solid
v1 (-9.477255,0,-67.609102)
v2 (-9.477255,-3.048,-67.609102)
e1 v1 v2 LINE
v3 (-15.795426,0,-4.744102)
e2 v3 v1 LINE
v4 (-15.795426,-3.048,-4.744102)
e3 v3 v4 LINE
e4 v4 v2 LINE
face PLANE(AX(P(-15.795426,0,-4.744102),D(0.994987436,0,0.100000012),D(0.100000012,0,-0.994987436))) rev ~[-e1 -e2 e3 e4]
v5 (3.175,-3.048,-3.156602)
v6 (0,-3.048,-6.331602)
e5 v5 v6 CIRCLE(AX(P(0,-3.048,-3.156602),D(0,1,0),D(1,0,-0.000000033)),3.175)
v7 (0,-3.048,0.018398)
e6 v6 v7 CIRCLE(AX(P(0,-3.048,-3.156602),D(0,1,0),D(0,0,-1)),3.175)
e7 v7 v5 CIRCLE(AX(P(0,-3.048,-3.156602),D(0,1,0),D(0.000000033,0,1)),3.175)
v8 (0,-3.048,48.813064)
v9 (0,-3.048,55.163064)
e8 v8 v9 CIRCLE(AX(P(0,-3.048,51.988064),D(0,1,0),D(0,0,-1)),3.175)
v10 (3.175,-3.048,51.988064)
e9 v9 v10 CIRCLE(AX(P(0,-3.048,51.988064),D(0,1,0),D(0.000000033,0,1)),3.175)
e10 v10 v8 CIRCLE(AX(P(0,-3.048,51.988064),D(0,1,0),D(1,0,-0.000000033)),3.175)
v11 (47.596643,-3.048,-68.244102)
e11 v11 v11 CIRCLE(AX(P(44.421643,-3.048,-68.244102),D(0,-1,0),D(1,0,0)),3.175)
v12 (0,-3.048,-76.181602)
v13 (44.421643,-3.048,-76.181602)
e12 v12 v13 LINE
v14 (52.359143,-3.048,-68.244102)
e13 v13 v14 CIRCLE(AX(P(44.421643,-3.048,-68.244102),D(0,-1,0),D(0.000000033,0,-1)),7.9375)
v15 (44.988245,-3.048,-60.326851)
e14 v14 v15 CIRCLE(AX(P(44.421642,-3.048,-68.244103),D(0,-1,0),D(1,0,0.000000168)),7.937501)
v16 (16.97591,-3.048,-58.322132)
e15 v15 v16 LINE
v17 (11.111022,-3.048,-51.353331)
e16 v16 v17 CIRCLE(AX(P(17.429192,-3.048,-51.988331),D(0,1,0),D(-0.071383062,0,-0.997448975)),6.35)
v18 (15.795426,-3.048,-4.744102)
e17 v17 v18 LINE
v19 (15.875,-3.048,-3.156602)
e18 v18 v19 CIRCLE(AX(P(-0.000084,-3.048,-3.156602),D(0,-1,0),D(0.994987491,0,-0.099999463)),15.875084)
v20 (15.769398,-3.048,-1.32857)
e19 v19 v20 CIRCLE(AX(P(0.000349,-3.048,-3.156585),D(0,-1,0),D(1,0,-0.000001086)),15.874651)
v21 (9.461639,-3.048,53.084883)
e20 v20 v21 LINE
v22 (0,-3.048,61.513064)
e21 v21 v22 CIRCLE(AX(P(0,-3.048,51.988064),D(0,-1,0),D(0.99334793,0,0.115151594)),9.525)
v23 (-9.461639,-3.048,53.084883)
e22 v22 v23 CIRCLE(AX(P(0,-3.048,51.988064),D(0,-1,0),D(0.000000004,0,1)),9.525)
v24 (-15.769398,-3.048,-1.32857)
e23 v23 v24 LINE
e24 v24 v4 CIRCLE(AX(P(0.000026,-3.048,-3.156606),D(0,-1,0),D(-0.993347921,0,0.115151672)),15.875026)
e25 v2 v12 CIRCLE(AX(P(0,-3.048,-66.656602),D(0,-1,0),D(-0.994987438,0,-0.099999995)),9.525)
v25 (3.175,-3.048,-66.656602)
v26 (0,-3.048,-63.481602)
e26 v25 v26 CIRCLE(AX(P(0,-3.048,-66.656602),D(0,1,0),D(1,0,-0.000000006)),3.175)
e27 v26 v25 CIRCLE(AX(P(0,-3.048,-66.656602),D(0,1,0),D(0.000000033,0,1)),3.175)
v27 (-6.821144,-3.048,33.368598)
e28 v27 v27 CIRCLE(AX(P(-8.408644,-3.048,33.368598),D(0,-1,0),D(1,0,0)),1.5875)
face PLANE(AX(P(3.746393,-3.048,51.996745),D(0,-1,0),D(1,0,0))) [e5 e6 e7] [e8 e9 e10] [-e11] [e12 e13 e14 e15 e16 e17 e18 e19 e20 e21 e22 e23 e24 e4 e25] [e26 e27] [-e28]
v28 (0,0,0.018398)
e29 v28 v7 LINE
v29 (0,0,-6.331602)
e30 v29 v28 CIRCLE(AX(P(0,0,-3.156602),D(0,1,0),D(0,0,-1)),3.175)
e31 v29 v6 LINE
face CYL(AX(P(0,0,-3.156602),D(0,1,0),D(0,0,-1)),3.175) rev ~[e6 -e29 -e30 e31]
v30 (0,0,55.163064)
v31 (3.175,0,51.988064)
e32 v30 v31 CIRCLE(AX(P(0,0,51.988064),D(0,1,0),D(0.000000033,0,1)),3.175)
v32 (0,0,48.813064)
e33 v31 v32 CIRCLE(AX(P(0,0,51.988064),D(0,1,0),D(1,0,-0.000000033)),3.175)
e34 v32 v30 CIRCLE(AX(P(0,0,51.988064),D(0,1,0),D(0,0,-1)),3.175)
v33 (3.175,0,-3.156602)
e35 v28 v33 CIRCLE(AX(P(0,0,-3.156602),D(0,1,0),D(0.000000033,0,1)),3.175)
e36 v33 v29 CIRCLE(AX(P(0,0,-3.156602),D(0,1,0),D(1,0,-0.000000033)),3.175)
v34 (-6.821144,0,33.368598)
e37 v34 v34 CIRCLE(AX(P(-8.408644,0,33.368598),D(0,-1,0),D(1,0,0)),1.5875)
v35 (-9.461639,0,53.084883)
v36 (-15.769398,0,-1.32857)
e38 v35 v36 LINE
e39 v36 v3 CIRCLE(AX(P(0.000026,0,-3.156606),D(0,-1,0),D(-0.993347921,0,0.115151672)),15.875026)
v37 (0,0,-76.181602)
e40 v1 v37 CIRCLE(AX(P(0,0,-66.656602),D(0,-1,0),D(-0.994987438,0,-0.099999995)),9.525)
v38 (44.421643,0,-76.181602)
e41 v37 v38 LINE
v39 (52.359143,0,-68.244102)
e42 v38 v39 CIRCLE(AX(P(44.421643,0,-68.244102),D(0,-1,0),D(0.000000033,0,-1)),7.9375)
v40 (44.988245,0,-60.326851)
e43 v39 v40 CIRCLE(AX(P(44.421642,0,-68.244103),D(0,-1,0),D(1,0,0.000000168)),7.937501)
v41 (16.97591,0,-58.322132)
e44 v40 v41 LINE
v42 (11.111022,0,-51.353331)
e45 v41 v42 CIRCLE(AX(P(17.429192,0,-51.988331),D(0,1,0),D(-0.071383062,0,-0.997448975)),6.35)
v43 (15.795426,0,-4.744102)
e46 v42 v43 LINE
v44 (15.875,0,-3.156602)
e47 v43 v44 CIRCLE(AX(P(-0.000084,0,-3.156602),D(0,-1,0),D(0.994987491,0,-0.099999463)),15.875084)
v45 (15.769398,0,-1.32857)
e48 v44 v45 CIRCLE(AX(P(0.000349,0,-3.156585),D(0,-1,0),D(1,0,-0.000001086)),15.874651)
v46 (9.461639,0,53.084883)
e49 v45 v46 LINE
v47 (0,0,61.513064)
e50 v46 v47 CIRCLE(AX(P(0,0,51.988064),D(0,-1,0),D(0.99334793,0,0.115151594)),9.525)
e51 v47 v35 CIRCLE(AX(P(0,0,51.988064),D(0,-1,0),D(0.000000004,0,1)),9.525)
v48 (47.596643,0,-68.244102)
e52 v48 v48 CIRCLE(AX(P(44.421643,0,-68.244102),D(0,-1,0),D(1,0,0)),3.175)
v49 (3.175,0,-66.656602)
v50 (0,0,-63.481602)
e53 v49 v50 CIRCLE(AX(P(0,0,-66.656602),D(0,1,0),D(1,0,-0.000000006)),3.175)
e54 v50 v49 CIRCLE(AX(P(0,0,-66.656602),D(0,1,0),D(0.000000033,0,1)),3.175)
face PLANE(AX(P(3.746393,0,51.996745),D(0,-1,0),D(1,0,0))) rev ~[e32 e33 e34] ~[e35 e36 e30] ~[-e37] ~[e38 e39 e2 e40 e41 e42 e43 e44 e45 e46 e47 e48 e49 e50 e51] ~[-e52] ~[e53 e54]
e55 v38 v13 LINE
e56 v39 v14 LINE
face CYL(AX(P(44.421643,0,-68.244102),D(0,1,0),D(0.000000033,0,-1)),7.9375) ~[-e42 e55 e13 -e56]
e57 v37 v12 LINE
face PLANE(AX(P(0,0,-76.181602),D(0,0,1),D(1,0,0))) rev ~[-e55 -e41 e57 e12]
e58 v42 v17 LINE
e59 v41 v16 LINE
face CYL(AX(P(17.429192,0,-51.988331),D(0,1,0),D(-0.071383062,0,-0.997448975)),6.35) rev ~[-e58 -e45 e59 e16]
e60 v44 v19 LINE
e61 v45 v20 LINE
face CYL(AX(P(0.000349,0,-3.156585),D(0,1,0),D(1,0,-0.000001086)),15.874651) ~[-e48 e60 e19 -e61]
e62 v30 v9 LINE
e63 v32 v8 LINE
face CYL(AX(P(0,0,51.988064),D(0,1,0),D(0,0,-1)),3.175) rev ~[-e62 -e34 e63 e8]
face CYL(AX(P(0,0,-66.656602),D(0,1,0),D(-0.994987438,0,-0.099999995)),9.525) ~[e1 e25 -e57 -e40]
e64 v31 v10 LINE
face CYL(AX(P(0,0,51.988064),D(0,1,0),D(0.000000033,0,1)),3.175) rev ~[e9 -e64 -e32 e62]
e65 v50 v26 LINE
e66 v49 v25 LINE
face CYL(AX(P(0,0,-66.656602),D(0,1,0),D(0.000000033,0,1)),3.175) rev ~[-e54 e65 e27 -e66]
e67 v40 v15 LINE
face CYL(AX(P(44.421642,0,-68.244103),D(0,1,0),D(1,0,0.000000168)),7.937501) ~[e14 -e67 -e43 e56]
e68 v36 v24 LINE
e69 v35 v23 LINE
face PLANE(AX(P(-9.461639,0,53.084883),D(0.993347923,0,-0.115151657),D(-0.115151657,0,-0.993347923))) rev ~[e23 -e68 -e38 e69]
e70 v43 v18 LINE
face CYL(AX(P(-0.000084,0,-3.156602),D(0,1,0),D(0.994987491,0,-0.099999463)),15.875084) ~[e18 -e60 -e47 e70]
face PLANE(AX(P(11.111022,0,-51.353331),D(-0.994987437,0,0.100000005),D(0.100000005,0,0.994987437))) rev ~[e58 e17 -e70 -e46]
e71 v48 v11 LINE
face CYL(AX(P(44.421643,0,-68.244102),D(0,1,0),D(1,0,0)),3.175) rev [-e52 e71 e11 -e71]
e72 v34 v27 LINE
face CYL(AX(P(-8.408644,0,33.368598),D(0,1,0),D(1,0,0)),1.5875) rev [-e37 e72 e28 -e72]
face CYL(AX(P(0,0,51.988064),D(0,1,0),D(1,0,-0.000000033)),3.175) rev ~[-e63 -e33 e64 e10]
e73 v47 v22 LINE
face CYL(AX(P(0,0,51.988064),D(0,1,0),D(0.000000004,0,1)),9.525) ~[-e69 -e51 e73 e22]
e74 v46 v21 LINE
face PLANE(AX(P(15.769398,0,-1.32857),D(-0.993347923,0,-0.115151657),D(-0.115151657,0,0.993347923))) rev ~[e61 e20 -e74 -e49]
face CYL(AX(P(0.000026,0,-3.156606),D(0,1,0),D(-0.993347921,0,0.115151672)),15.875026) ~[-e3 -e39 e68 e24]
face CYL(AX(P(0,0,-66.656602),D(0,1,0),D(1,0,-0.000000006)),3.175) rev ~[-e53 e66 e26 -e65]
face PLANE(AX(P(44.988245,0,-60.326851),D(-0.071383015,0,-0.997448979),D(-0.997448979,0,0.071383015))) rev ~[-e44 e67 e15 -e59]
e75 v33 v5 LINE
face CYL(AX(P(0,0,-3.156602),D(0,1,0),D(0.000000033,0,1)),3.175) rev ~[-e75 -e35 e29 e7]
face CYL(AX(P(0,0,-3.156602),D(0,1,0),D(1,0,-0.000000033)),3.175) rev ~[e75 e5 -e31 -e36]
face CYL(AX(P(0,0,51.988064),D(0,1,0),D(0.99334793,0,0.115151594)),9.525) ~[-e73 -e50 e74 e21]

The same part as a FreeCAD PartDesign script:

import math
import FreeCAD as App
import Part
import Sketcher

V = App.Vector
Q = App.Units.Quantity

doc = App.newDocument("Part")
params = doc.addObject("Spreadsheet::Sheet", "Params")
for row, (alias, value) in enumerate([
    ("sketch1_diameter", "0.25 in"),
    ("sketch1_radius", "0.25 in"),
    ("sketch1_diameter2", "0.125 in"),
    ("sketch1_radius2", "0.375 in"),
    ("sketch1_radius3", "0.375 in"),
    ("pad1_length", "0.12 in"),
], start=1):
    params.set(f"A{row}", alias)
    params.set(f"B{row}", "=" + value)
    params.setAlias(f"B{row}", alias)

body = doc.addObject("PartDesign::Body", "Body")

sketch1 = body.newObject("Sketcher::SketchObject", "Sketch")
sketch1.AttachmentSupport = (doc.getObject("XZ_Plane"), [""])
sketch1.MapMode = "FlatFace"
sketch1.addGeometry(Part.LineSegment(V(15.769398, -1.32857, 0), V(9.461639, 53.084883, 0)), False)
sketch1.addGeometry(Part.ArcOfCircle(Part.Circle(V(0, 51.988064, 0), V(0, 0, 1), 9.525), math.radians(6.612369), math.radians(90)), False)
sketch1.addGeometry(Part.ArcOfCircle(Part.Circle(V(0, 51.988064, 0), V(0, 0, 1), 9.525), math.radians(90), math.radians(173.387631)), False)
sketch1.addGeometry(Part.LineSegment(V(-9.461639, 53.084883, 0), V(-15.769398, -1.32857, 0)), False)
sketch1.addGeometry(Part.ArcOfCircle(Part.Circle(V(0.000026, -3.156606, 0), V(0, 0, 1), 15.875026), math.radians(173.387627), math.radians(185.739147)), False)
sketch1.addGeometry(Part.LineSegment(V(-15.795426, -4.744102, 0), V(-9.477255, -67.609102, 0)), False)
sketch1.addGeometry(Part.ArcOfCircle(Part.Circle(V(0, -66.656602, 0), V(0, 0, 1), 9.525), math.radians(-174.26083), math.radians(-90.000002)), False)
sketch1.addGeometry(Part.LineSegment(V(0, -76.181602, 0), V(44.421643, -76.181602, 0)), False)
sketch1.addGeometry(Part.ArcOfCircle(Part.Circle(V(44.421643, -68.244102, 0), V(0, 0, 1), 7.9375), math.radians(-89.999998), math.radians(-0.000002)), False)
sketch1.addGeometry(Part.ArcOfCircle(Part.Circle(V(44.421642, -68.244103, 0), V(0, 0, 1), 7.937501), math.radians(0.00001), math.radians(85.906571)), False)
sketch1.addGeometry(Part.LineSegment(V(44.988245, -60.326851, 0), V(16.97591, -58.322132, 0)), False)
sketch1.addGeometry(Part.ArcOfCircle(Part.Circle(V(17.429192, -51.988331, 0), V(0, 0, 1), 6.35), math.radians(174.260832), math.radians(265.90657)), False)
sketch1.addGeometry(Part.LineSegment(V(11.111022, -51.353331, 0), V(15.795426, -4.744102, 0)), False)
sketch1.addGeometry(Part.ArcOfCircle(Part.Circle(V(-0.000084, -3.156602, 0), V(0, 0, 1), 15.875084), math.radians(-5.73914), math.radians(0)), False)
sketch1.addGeometry(Part.ArcOfCircle(Part.Circle(V(0.000349, -3.156585, 0), V(0, 0, 1), 15.874651), math.radians(-0.000062), math.radians(6.612454)), False)
sketch1.addGeometry(Part.ArcOfCircle(Part.Circle(V(0, -66.656602, 0), V(0, 0, 1), 3.175), math.radians(0.000002), math.radians(89.999998)), False)
sketch1.addGeometry(Part.ArcOfCircle(Part.Circle(V(0, -66.656602, 0), V(0, 0, 1), 3.175), math.radians(90), math.radians(360)), False)
sketch1.addGeometry(Part.Circle(V(44.421643, -68.244102, 0), V(0, 0, 1), 3.175), False)
sketch1.addGeometry(Part.ArcOfCircle(Part.Circle(V(0, -3.156602, 0), V(0, 0, 1), 3.175), math.radians(90), math.radians(270)), False)
sketch1.addGeometry(Part.ArcOfCircle(Part.Circle(V(0, -3.156602, 0), V(0, 0, 1), 3.175), math.radians(0.000002), math.radians(89.999998)), False)
sketch1.addGeometry(Part.ArcOfCircle(Part.Circle(V(0, -3.156602, 0), V(0, 0, 1), 3.175), math.radians(-89.999998), math.radians(-0.000002)), False)
sketch1.addGeometry(Part.Circle(V(-8.408644, 33.368598, 0), V(0, 0, 1), 1.5875), False)
sketch1.addGeometry(Part.ArcOfCircle(Part.Circle(V(0, 51.988064, 0), V(0, 0, 1), 3.175), math.radians(0.000002), math.radians(89.999998)), False)
sketch1.addGeometry(Part.ArcOfCircle(Part.Circle(V(0, 51.988064, 0), V(0, 0, 1), 3.175), math.radians(-89.999998), math.radians(-0.000002)), False)
sketch1.addGeometry(Part.ArcOfCircle(Part.Circle(V(0, 51.988064, 0), V(0, 0, 1), 3.175), math.radians(90), math.radians(270)), False)
sketch1.addConstraint(Sketcher.Constraint("Coincident", 0, 2, 1, 1))
sketch1.addConstraint(Sketcher.Constraint("Coincident", 1, 2, 2, 1))
sketch1.addConstraint(Sketcher.Constraint("Coincident", 2, 2, 3, 1))
sketch1.addConstraint(Sketcher.Constraint("Coincident", 3, 2, 4, 1))
sketch1.addConstraint(Sketcher.Constraint("Coincident", 4, 2, 5, 1))
sketch1.addConstraint(Sketcher.Constraint("Coincident", 5, 2, 6, 1))
sketch1.addConstraint(Sketcher.Constraint("Coincident", 6, 2, 7, 1))
sketch1.addConstraint(Sketcher.Constraint("Coincident", 7, 2, 8, 1))
sketch1.addConstraint(Sketcher.Constraint("Coincident", 8, 2, 9, 1))
sketch1.addConstraint(Sketcher.Constraint("Coincident", 9, 2, 10, 1))
sketch1.addConstraint(Sketcher.Constraint("Coincident", 10, 2, 11, 2))
sketch1.addConstraint(Sketcher.Constraint("Coincident", 11, 1, 12, 1))
sketch1.addConstraint(Sketcher.Constraint("Coincident", 12, 2, 13, 1))
sketch1.addConstraint(Sketcher.Constraint("Coincident", 13, 2, 14, 1))
sketch1.addConstraint(Sketcher.Constraint("Coincident", 14, 2, 0, 1))
sketch1.addConstraint(Sketcher.Constraint("Coincident", 15, 1, 16, 2))
sketch1.addConstraint(Sketcher.Constraint("Coincident", 16, 1, 15, 2))
sketch1.addConstraint(Sketcher.Constraint("Coincident", 18, 1, 19, 2))
sketch1.addConstraint(Sketcher.Constraint("Coincident", 19, 1, 20, 2))
sketch1.addConstraint(Sketcher.Constraint("Coincident", 20, 1, 18, 2))
sketch1.addConstraint(Sketcher.Constraint("Coincident", 22, 1, 23, 2))
sketch1.addConstraint(Sketcher.Constraint("Coincident", 23, 1, 24, 2))
sketch1.addConstraint(Sketcher.Constraint("Coincident", 24, 1, 22, 2))
sketch1.addConstraint(Sketcher.Constraint("Horizontal", 7))
sketch1.addConstraint(Sketcher.Constraint("Coincident", 2, 3, 1, 3))
sketch1.addConstraint(Sketcher.Constraint("Coincident", 9, 3, 8, 3))
sketch1.addConstraint(Sketcher.Constraint("Coincident", 15, 3, 6, 3))
sketch1.addConstraint(Sketcher.Constraint("Coincident", 17, 3, 8, 3))
sketch1.addConstraint(Sketcher.Constraint("Coincident", 19, 3, 18, 3))
sketch1.addConstraint(Sketcher.Constraint("Coincident", 22, 3, 1, 3))
sketch1.addConstraint(Sketcher.Constraint("Coincident", 23, 3, 1, 3))
sketch1.addConstraint(Sketcher.Constraint("PointOnObject", 1, 3, -2))
sketch1.addConstraint(Sketcher.Constraint("PointOnObject", 6, 3, -2))
sketch1.addConstraint(Sketcher.Constraint("PointOnObject", 16, 3, -2))
sketch1.addConstraint(Sketcher.Constraint("PointOnObject", 18, 3, -2))
sketch1.addConstraint(Sketcher.Constraint("PointOnObject", 20, 3, -2))
sketch1.addConstraint(Sketcher.Constraint("PointOnObject", 24, 3, -2))
sketch1.addConstraint(Sketcher.Constraint("PointOnObject", 1, 2, -2))
sketch1.addConstraint(Sketcher.Constraint("PointOnObject", 6, 2, -2))
sketch1.addConstraint(Sketcher.Constraint("PointOnObject", 16, 1, -2))
sketch1.addConstraint(Sketcher.Constraint("PointOnObject", 18, 1, -2))
sketch1.addConstraint(Sketcher.Constraint("PointOnObject", 20, 1, -2))
sketch1.addConstraint(Sketcher.Constraint("PointOnObject", 23, 1, -2))
sketch1.addConstraint(Sketcher.Constraint("PointOnObject", 24, 1, -2))
sketch1.addConstraint(Sketcher.Constraint("Diameter", 17, Q("0.25 in")))
sketch1.addConstraint(Sketcher.Constraint("Radius", 11, Q("0.25 in")))
sketch1.addConstraint(Sketcher.Constraint("Diameter", 21, Q("0.125 in")))
sketch1.addConstraint(Sketcher.Constraint("Radius", 1, Q("0.375 in")))
sketch1.addConstraint(Sketcher.Constraint("Radius", 6, Q("0.375 in")))
sketch1.addConstraint(Sketcher.Constraint("Radius", 8, Q("0.3125 in")))
sketch1.addConstraint(Sketcher.Constraint("Radius", 15, Q("0.125 in")))
sketch1.addConstraint(Sketcher.Constraint("Radius", 18, Q("0.125 in")))
sketch1.addConstraint(Sketcher.Constraint("Radius", 22, Q("0.125 in")))
sketch1.addConstraint(Sketcher.Constraint("DistanceY", 6, 3, 4, 3, Q("2.4999999 in")))
sketch1.addConstraint(Sketcher.Constraint("DistanceY", 6, 3, 13, 3, Q("2.5 in")))
sketch1.addConstraint(Sketcher.Constraint("DistanceX", -1, 1, 13, 2, Q("0.625 in")))
sketch1.addConstraint(Sketcher.Constraint("Radius", 14, 15.874651))
sketch1.addConstraint(Sketcher.Constraint("DistanceY", 13, 3, 21, 3, Q("1.438 in")))
sketch1.addConstraint(Sketcher.Constraint("DistanceY", 20, 3, 21, 3, Q("1.438 in")))
sketch1.addConstraint(Sketcher.Constraint("DistanceY", 4, 2, 13, 3, Q("0.0625 in")))
sketch1.addConstraint(Sketcher.Constraint("DistanceY", 9, 3, 5, 2, Q("0.0250001 in")))
sketch1.addConstraint(Sketcher.Constraint("DistanceX", 7, 2, 8, 2, Q("0.3125 in")))
sketch1.addConstraint(Sketcher.Constraint("DistanceY", 7, 2, 8, 2, Q("0.3125 in")))
sketch1.addConstraint(Sketcher.Constraint("DistanceY", 11, 3, 11, 1, Q("0.025 in")))
sketch1.addConstraint(Sketcher.Constraint("DistanceY", 12, 2, 4, 3, Q("0.0624999 in")))
sketch1.addConstraint(Sketcher.Constraint("DistanceY", 12, 2, 13, 2, Q("0.0625 in")))
sketch1.addConstraint(Sketcher.Constraint("DistanceY", 6, 2, 15, 1, Q("0.375 in")))
sketch1.addConstraint(Sketcher.Constraint("Radius", 4, 15.875026))
sketch1.addConstraint(Sketcher.Constraint("Radius", 13, 15.875084))
sketch1.addConstraint(Sketcher.Constraint("DistanceY", 8, 3, -1, 1, 68.244102))
sketch1.addConstraint(Sketcher.Constraint("DistanceX", 3, 2, -1, 1, 15.769398))
sketch1.addConstraint(Sketcher.Constraint("DistanceX", -1, 1, 14, 2, 15.769398))
sketch1.addConstraint(Sketcher.Constraint("DistanceY", 19, 1, -1, 1, 3.156602))
sketch1.addConstraint(Sketcher.Constraint("DistanceY", 10, 2, 11, 3, 6.333801))
sketch1.addConstraint(Sketcher.Constraint("DistanceX", 4, 3, 12, 2, 15.7954))
sketch1.addConstraint(Sketcher.Constraint("Distance", 0, 54.777839))
sketch1.addConstraint(Sketcher.Constraint("Distance", 3, 54.777839))
sketch1.addConstraint(Sketcher.Constraint("DistanceX", 7, 1, 7, 2, 44.421643))
sketch1.addConstraint(Sketcher.Constraint("DistanceY", 11, 3, -1, 1, 51.988331))
sketch1.addConstraint(Sketcher.Constraint("DistanceX", -1, 1, 0, 2, 9.461639))
sketch1.addConstraint(Sketcher.Constraint("DistanceX", 2, 2, -1, 1, 9.461639))
sketch1.addConstraint(Sketcher.Constraint("DistanceY", 9, 2, -1, 1, 60.326851))
sketch1.addConstraint(Sketcher.Constraint("DistanceX", -1, 1, 10, 2, 16.97591))
sketch1.addConstraint(Sketcher.Constraint("DistanceX", 21, 3, 13, 3, 8.40856))
sketch1.addConstraint(Sketcher.Constraint("DistanceY", -1, 1, 22, 1, 51.988064))
sketch1.setExpression("Constraints[44]", "Params.sketch1_diameter")
sketch1.setExpression("Constraints[45]", "Params.sketch1_radius")
sketch1.setExpression("Constraints[46]", "Params.sketch1_diameter2")
sketch1.setExpression("Constraints[47]", "Params.sketch1_radius2")
sketch1.setExpression("Constraints[48]", "Params.sketch1_radius3")
pad1 = body.newObject("PartDesign::Pad", "Pad")
pad1.Profile = sketch1
pad1.setExpression("Length", "Params.pad1_length")

doc.recompute()
